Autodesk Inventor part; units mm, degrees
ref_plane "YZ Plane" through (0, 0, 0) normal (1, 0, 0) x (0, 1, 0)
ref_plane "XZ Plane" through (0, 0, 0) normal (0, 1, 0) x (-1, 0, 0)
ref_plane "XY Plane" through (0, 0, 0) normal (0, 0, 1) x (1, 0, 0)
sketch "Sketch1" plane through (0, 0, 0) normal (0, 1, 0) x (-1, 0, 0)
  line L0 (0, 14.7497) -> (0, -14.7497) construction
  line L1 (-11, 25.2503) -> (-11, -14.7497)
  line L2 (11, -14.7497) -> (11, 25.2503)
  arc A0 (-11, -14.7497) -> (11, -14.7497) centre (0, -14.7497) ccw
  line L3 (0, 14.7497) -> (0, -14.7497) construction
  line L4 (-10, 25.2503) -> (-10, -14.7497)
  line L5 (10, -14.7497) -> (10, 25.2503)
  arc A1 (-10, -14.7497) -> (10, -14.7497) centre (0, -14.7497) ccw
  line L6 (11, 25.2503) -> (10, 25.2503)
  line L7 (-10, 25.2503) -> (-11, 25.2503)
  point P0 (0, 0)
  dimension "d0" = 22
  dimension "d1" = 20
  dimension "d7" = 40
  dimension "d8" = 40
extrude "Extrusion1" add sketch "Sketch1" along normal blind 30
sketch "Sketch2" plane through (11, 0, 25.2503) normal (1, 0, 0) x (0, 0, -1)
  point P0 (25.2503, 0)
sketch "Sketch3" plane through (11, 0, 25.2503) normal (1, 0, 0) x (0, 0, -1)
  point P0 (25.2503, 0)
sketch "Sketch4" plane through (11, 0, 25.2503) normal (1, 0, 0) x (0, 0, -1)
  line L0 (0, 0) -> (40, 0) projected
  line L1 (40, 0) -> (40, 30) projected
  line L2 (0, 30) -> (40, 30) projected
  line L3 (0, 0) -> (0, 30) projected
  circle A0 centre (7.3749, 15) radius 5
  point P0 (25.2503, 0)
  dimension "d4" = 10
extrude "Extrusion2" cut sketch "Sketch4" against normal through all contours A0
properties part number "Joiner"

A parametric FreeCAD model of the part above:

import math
import FreeCAD as App
import Part
import Sketcher
from FreeCAD import Vector

doc = App.newDocument("Part")
body = doc.addObject("PartDesign::Body", "Body")

sketch1 = body.newObject("Sketcher::SketchObject", "Sketch")
sketch1.AttachmentSupport = (doc.getObject("XZ_Plane"), [""])
sketch1.MapMode = "FlatFace"
sketch1.addGeometry([
    Part.LineSegment(Vector(10, 25.3, 0), Vector(11, 25.3, 0)),
    Part.LineSegment(Vector(11, 25.3, 0), Vector(11, -14.7, 0)),
    Part.ArcOfCircle(Part.Circle(Vector(0, -14.7, 0), Vector(0, 0, 1), 11), math.radians(180), math.radians(360)),
    Part.LineSegment(Vector(-11, -14.7, 0), Vector(-11, 25.3, 0)),
    Part.LineSegment(Vector(-11, 25.3, 0), Vector(-10, 25.3, 0)),
    Part.LineSegment(Vector(-10, 25.3, 0), Vector(-10, -14.7, 0)),
    Part.ArcOfCircle(Part.Circle(Vector(0, -14.7, 0), Vector(0, 0, 1), 10), math.radians(180), math.radians(360)),
    Part.LineSegment(Vector(10, -14.7, 0), Vector(10, 25.3, 0)),
], False)
sketch1.addConstraint([
    Sketcher.Constraint("Coincident", 0, 2, 1, 1),
    Sketcher.Constraint("Tangent", 1, 2, 2, 2),
    Sketcher.Constraint("Tangent", 2, 1, 3, 1),
    Sketcher.Constraint("Coincident", 3, 2, 4, 1),
    Sketcher.Constraint("Coincident", 4, 2, 5, 1),
    Sketcher.Constraint("Tangent", 5, 2, 6, 1),
    Sketcher.Constraint("Tangent", 6, 2, 7, 1),
    Sketcher.Constraint("Coincident", 7, 2, 0, 1),
    Sketcher.Constraint("Horizontal", 0),
    Sketcher.Constraint("Vertical", 1),
    Sketcher.Constraint("Vertical", 3),
    Sketcher.Constraint("Horizontal", 4),
    Sketcher.Constraint("Vertical", 5),
    Sketcher.Constraint("Vertical", 7),
    Sketcher.Constraint("Coincident", 6, 3, 2, 3),
    Sketcher.Constraint("Symmetric", 0, 2, 3, 2, -2),
    Sketcher.Constraint("Radius", 2, 11.0),
    Sketcher.Constraint("Radius", 6, 10.0),
    Sketcher.Constraint("DistanceY", 1, 2, 1, 1, 40.0),
    Sketcher.Constraint("DistanceY", 2, 3, -1, 1, 14.7497),
])
pad1 = body.newObject("PartDesign::Pad", "Pad")
pad1.Profile = sketch1
pad1.Length = 30
pad1.Reversed = True

sketch2 = body.newObject("Sketcher::SketchObject", "Sketch001")
sketch2.AttachmentSupport = (doc.getObject("YZ_Plane"), [""])
sketch2.MapMode = "FlatFace"
sketch2.AttachmentOffset = App.Placement(Vector(0, 0, 11), App.Rotation())
sketch2.addGeometry(Part.Circle(Vector(15, 18, 0), Vector(0, 0, 1), 5), False)
sketch2.addConstraint([
    Sketcher.Constraint("Diameter", 0, 10.0),
    Sketcher.Constraint("DistanceX", -1, 1, 0, 3, 15.0),
    Sketcher.Constraint("DistanceY", -1, 1, 0, 3, 17.8754),
])
pocket1 = body.newObject("PartDesign::Pocket", "Pocket")
pocket1.Profile = sketch2
pocket1.Type = "ThroughAll"

doc.recompute()
